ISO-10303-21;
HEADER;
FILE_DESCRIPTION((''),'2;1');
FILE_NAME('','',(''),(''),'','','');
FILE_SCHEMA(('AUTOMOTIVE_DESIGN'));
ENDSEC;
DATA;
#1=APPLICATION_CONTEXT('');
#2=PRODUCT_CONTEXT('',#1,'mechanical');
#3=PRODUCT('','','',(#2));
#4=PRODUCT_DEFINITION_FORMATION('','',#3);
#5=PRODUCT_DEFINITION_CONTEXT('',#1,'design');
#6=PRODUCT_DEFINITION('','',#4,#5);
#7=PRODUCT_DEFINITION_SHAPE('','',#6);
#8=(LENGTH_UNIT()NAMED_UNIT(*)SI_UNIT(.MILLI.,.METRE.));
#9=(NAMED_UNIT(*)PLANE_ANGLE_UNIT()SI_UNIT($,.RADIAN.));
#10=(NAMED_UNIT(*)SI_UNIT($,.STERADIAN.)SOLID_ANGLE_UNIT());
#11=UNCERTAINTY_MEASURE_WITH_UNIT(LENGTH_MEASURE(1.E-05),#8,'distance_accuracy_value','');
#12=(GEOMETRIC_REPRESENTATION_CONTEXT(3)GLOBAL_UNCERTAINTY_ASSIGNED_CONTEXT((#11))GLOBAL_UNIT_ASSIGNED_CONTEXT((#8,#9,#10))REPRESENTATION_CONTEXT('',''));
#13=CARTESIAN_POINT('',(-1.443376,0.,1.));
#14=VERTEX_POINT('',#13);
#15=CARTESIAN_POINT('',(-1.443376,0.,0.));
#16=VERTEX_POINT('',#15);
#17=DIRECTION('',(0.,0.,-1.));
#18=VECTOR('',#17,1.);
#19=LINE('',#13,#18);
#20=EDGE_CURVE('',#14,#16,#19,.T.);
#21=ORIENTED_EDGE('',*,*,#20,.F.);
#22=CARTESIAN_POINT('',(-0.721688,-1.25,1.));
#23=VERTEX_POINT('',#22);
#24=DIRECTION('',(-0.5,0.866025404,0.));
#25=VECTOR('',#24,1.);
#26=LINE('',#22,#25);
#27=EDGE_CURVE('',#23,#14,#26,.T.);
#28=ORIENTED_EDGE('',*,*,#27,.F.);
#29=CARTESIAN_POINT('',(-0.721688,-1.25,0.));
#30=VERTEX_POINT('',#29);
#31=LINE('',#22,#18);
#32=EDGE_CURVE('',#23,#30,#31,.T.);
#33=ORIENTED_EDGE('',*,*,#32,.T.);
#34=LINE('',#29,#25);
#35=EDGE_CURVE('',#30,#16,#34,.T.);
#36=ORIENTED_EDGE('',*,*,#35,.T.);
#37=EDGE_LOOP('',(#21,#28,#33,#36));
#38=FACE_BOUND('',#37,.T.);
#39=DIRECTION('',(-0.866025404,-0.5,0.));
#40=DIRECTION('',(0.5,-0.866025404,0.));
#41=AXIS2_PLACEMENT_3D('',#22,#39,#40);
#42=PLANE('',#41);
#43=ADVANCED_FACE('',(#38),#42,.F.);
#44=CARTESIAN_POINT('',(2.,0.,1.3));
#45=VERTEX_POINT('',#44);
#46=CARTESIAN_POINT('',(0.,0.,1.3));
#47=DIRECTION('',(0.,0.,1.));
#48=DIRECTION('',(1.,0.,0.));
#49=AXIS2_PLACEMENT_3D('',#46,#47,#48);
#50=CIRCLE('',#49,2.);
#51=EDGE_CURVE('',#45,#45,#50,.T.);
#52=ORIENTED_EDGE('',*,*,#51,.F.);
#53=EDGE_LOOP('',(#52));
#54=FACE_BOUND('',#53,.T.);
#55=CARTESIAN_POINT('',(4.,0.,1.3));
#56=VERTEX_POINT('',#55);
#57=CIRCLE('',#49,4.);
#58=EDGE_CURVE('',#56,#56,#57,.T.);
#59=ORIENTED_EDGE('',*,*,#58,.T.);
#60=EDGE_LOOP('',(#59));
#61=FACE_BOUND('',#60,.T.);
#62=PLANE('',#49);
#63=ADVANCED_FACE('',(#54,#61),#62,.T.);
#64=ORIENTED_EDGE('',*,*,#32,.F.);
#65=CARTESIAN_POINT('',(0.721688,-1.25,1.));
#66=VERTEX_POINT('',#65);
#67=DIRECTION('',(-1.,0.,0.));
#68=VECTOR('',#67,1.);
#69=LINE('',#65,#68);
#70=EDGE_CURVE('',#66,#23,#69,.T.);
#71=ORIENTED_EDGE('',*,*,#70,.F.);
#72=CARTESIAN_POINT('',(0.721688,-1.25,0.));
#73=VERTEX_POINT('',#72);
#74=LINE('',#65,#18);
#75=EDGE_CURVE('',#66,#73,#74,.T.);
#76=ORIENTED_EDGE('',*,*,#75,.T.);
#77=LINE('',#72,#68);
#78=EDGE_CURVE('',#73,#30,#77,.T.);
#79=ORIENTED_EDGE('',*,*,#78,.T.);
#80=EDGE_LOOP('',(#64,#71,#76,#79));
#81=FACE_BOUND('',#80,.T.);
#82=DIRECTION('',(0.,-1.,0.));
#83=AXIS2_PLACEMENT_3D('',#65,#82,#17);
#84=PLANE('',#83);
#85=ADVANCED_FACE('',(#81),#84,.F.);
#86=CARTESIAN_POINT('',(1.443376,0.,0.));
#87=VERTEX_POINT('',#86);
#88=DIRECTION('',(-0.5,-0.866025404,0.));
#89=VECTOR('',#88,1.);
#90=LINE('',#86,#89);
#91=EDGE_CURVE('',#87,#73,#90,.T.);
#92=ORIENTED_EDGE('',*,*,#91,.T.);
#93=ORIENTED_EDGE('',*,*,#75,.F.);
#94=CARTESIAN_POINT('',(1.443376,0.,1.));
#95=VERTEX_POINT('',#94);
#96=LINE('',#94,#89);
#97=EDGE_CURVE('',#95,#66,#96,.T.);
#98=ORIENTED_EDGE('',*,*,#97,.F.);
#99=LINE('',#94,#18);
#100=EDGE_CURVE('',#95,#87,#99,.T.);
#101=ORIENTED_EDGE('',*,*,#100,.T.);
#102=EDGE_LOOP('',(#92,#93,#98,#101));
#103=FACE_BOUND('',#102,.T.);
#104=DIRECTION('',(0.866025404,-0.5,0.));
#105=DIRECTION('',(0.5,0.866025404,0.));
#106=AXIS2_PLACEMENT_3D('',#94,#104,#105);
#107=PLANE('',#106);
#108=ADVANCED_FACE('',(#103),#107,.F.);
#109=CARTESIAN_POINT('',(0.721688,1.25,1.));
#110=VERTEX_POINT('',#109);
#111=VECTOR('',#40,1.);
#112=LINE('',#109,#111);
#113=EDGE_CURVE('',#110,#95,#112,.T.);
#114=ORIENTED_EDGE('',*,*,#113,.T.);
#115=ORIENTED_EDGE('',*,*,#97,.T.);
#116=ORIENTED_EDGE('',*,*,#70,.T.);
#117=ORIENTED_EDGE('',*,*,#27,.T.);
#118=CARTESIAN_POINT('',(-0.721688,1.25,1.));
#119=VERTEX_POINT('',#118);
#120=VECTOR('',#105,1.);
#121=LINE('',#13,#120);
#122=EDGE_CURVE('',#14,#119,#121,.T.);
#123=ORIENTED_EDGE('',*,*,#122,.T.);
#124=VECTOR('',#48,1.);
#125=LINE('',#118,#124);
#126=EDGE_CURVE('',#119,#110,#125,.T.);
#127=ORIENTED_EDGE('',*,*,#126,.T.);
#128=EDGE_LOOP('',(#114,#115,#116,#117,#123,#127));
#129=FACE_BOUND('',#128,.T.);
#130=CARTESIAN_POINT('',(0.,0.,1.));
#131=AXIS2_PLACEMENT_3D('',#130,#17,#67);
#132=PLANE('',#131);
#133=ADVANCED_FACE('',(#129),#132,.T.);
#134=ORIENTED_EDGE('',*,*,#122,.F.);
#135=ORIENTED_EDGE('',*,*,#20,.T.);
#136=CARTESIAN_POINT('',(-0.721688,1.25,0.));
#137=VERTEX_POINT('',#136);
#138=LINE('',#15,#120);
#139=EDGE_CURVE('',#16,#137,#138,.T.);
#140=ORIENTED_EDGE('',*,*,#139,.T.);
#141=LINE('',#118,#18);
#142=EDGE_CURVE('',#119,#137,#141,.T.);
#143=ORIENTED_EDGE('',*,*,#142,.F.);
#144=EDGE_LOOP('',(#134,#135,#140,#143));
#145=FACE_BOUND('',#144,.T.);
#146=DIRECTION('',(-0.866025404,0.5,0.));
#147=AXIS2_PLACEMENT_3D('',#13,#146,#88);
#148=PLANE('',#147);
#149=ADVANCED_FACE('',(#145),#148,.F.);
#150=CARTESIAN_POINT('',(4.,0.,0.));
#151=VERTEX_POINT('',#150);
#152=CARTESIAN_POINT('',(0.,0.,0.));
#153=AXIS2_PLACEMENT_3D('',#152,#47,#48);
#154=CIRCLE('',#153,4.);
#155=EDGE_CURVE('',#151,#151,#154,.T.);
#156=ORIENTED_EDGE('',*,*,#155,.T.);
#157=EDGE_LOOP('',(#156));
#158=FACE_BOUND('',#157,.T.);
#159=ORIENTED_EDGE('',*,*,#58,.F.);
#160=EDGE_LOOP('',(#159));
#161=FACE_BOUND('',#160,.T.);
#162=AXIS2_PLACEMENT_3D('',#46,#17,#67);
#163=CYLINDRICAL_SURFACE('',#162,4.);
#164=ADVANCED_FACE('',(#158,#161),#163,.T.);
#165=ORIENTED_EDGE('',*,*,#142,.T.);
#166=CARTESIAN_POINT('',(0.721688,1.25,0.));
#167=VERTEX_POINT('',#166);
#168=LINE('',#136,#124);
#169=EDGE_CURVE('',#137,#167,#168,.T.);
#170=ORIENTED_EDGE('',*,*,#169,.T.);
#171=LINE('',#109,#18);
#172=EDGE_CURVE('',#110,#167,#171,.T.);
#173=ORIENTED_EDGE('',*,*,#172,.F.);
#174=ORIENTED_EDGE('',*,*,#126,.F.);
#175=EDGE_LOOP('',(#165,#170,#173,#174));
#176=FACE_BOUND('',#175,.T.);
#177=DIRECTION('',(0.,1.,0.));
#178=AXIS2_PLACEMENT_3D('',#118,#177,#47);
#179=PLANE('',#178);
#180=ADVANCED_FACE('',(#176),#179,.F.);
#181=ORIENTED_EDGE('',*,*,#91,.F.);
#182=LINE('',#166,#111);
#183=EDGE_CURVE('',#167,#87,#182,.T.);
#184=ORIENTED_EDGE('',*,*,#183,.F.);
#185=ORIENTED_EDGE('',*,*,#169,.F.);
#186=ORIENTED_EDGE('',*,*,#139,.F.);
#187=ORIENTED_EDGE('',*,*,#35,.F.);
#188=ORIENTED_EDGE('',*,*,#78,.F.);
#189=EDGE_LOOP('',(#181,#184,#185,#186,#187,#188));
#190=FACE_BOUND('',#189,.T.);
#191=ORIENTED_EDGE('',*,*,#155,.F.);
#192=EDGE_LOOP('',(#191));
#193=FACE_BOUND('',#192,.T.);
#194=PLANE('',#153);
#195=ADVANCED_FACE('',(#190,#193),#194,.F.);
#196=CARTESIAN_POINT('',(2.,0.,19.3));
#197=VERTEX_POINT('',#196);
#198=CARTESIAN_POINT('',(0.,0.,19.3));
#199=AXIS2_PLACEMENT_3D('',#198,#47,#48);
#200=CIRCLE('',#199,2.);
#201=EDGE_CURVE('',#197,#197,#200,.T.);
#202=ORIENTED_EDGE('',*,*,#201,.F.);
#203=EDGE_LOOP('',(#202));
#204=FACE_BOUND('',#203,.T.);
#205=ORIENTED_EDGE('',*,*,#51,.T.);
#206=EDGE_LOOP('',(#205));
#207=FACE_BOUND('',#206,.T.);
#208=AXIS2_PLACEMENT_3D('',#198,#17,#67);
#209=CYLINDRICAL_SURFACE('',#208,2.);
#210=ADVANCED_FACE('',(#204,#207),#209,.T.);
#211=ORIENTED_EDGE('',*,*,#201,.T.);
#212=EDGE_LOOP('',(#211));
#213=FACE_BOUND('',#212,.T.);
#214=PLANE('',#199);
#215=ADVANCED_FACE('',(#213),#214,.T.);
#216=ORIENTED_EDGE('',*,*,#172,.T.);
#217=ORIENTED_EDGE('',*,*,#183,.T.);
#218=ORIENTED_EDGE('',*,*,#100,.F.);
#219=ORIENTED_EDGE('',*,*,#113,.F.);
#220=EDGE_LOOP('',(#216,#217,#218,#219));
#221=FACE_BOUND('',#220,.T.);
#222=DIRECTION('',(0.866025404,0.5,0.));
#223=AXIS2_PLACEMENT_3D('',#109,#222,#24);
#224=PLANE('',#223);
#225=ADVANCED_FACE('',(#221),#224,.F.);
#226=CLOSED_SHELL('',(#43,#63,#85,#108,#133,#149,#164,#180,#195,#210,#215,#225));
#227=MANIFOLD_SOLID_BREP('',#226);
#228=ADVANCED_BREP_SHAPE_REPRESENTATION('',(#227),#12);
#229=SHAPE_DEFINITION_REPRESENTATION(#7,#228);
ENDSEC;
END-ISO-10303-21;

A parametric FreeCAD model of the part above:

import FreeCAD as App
import Part
import Sketcher
from FreeCAD import Vector
Q = App.Units.Quantity


def add_polygon(sketch, points):
    """Adds a closed chain of lines whose ends are joined by coincident constraints."""
    first, n = sketch.GeometryCount, len(points)
    for a, b in zip(points, points[1:] + points[:1]):
        sketch.addGeometry(Part.LineSegment(App.Vector(*a, 0), App.Vector(*b, 0)), False)
    for i in range(n):
        sketch.addConstraint(Sketcher.Constraint("Coincident", first + i, 2, first + (i + 1) % n, 1))

doc = App.newDocument("Part")
body = doc.addObject("PartDesign::Body", "Body")

# Sketch on XY plane
sketch1 = body.newObject("Sketcher::SketchObject", "Sketch")
sketch1.AttachmentSupport = (doc.getObject("XY_Plane"), [""])
sketch1.MapMode = "FlatFace"
sketch1.addGeometry(Part.Circle(Vector(0, 0, 0), Vector(0, 0, 1), 4), False)
sketch1.addConstraint(Sketcher.Constraint("Coincident", 0, 3, -1, 1))
sketch1.addConstraint(Sketcher.Constraint("Diameter", 0, 8.0))
pad1 = body.newObject("PartDesign::Pad", "Pad")
pad1.Profile = sketch1
pad1.Length = 1.3

# Sketch on XY plane
sketch2 = body.newObject("Sketcher::SketchObject", "Sketch001")
sketch2.AttachmentSupport = (doc.getObject("XY_Plane"), [""])
sketch2.MapMode = "FlatFace"
sketch2.AttachmentOffset = App.Placement(Vector(0, 0, 1.3), App.Rotation())
sketch2.addGeometry(Part.Circle(Vector(0, 0, 0), Vector(0, 0, 1), 2), False)
sketch2.addConstraint(Sketcher.Constraint("Coincident", 0, 3, -1, 1))
sketch2.addConstraint(Sketcher.Constraint("Diameter", 0, 4.0))
pad2 = body.newObject("PartDesign::Pad", "Pad001")
pad2.Profile = sketch2
pad2.Length = 18

# Sketch on XY plane
sketch3 = body.newObject("Sketcher::SketchObject", "Sketch002")
sketch3.AttachmentSupport = (doc.getObject("XY_Plane"), [""])
sketch3.MapMode = "FlatFace"
add_polygon(sketch3, [(-1.443376, 0), (-0.721688, 1.25), (0.721688, 1.25), (1.443376, 0), (0.721688, -1.25), (-0.721688, -1.25)])  # lines 0-5
sketch3.addConstraint(Sketcher.Constraint("Horizontal", 1))
sketch3.addConstraint(Sketcher.Constraint("Horizontal", 4))
sketch3.addConstraint(Sketcher.Constraint("Symmetric", 0, 2, 3, 2, -1, 1))
sketch3.addConstraint(Sketcher.Constraint("Symmetric", 2, 2, 5, 2, -1, 1))
sketch3.addConstraint(Sketcher.Constraint("PointOnObject", 2, 2, -1))
sketch3.addConstraint(Sketcher.Constraint("Parallel", 2, 5))
sketch3.addConstraint(Sketcher.Constraint("Vertical", 1, 2, 3, 2))
sketch3.addConstraint(Sketcher.Constraint("Angle", 0, Q("60 deg")))
sketch3.addConstraint(Sketcher.Constraint("DistanceY", 3, 2, 1, 2, 2.5))
sketch3.addConstraint(Sketcher.Constraint("DistanceX", 1, 1, 1, 2, 1.443376))
pocket1 = body.newObject("PartDesign::Pocket", "Pocket")
pocket1.Profile = sketch3
pocket1.Length = 1
pocket1.Reversed = True

doc.recompute()
